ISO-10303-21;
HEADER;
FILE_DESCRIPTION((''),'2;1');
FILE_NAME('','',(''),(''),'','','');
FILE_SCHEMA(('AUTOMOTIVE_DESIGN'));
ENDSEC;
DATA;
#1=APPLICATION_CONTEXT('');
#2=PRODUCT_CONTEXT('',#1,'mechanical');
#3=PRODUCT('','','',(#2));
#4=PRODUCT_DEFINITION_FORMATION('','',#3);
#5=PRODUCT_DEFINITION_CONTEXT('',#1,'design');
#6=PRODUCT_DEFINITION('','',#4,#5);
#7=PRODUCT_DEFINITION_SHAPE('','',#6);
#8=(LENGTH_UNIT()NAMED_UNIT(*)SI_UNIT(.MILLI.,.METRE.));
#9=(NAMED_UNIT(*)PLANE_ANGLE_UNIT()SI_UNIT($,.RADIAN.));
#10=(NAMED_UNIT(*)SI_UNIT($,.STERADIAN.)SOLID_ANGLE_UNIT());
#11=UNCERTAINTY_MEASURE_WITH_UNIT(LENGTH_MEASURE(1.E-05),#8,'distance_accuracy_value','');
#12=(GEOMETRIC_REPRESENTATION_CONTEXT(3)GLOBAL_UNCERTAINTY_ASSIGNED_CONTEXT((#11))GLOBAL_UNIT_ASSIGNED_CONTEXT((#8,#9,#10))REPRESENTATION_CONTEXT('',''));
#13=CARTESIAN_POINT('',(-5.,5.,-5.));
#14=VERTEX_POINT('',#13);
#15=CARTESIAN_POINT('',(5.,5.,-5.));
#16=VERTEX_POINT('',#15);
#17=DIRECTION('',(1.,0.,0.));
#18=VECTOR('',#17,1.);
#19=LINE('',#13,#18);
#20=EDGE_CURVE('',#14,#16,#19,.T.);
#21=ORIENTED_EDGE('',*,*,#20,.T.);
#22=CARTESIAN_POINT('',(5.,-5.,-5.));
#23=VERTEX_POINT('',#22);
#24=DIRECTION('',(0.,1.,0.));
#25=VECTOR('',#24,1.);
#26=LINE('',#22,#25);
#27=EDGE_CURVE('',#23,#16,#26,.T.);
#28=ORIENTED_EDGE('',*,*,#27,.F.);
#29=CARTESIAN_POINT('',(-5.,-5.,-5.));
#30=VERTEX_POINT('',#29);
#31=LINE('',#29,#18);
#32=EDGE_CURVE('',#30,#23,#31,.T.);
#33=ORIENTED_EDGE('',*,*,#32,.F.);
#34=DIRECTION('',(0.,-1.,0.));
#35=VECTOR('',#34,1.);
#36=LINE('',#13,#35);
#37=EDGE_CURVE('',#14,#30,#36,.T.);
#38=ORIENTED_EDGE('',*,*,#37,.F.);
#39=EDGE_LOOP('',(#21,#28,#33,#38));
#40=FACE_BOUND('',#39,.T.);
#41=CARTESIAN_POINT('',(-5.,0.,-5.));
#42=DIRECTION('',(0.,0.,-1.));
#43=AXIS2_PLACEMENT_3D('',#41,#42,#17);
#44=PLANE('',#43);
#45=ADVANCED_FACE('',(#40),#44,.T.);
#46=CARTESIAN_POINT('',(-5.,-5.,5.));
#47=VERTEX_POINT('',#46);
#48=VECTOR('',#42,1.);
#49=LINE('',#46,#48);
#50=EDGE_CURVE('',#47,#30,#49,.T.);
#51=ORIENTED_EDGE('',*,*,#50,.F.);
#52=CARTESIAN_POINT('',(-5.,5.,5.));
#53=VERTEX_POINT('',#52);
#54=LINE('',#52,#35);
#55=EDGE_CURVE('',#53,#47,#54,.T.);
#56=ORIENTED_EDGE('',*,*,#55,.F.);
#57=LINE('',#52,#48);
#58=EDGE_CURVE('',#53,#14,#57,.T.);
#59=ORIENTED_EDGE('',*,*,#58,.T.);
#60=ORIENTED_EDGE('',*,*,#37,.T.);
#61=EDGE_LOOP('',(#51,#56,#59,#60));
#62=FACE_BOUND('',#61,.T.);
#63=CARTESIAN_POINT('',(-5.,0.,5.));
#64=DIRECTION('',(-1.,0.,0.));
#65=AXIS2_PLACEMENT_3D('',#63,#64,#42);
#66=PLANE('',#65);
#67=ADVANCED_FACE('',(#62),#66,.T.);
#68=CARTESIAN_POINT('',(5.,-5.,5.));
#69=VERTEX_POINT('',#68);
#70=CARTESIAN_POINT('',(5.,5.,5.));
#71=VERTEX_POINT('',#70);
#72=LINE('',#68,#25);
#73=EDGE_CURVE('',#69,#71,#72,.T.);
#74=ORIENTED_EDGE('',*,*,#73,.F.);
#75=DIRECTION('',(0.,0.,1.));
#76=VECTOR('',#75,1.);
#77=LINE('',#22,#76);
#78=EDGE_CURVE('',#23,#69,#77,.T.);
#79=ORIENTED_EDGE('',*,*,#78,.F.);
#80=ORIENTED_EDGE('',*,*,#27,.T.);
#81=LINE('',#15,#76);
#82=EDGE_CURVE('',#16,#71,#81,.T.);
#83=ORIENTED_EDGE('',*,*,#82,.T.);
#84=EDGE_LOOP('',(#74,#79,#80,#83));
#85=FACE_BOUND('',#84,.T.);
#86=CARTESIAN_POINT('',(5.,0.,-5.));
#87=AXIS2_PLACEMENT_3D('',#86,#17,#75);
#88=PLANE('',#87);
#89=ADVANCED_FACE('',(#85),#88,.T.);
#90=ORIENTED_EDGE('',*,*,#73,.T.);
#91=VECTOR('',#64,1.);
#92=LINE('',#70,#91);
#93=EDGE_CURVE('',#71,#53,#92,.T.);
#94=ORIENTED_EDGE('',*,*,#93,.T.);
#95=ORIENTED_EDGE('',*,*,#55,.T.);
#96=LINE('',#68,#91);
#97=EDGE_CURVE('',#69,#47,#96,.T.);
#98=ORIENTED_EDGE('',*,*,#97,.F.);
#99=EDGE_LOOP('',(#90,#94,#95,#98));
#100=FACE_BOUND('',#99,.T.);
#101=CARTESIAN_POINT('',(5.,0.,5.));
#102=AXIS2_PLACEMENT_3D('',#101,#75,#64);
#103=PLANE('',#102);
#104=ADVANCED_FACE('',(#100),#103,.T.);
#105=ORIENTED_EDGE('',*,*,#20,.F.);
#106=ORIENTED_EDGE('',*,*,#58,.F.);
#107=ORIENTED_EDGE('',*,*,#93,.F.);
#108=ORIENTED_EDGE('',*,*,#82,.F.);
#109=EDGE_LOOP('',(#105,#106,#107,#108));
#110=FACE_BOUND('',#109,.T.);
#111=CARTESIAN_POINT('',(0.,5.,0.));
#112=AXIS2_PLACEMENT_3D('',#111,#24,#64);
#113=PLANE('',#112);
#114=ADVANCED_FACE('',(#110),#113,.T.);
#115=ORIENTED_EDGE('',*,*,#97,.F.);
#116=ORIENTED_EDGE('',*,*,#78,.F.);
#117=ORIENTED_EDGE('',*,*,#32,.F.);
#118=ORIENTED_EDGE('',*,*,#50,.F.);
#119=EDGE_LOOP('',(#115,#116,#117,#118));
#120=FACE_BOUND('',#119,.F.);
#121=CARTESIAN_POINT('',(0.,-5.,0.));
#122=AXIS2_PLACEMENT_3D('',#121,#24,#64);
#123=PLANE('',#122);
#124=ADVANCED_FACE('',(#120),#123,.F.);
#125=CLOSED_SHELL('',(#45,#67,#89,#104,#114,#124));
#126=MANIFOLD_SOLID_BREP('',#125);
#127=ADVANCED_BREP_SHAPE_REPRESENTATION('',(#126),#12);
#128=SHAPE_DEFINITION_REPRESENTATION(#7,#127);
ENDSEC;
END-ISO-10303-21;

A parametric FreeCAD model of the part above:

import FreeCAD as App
import Part
import Sketcher
from FreeCAD import Vector
Q = App.Units.Quantity


def add_polygon(sketch, points):
    """Adds a closed chain of lines whose ends are joined by coincident constraints."""
    first, n = sketch.GeometryCount, len(points)
    for a, b in zip(points, points[1:] + points[:1]):
        sketch.addGeometry(Part.LineSegment(App.Vector(*a, 0), App.Vector(*b, 0)), False)
    for i in range(n):
        sketch.addConstraint(Sketcher.Constraint("Coincident", first + i, 2, first + (i + 1) % n, 1))

doc = App.newDocument("Part")
body = doc.addObject("PartDesign::Body", "Body")

# Sketch on XZ plane
sketch1 = doc.addObject("Sketcher::SketchObject", "Sketch")
body.addObject(sketch1)
sketch1.AttachmentSupport = (doc.XZ_Plane, [""])
sketch1.MapMode = "FlatFace"
add_polygon(sketch1, [(-5, 5), (5, 5), (5, -5), (-5, -5)])  # lines 0-3
sketch1.addConstraint([
    Sketcher.Constraint("Horizontal", 0),
    Sketcher.Constraint("Vertical", 1),
    Sketcher.Constraint("Horizontal", 2),
    Sketcher.Constraint("Vertical", 3),
    Sketcher.Constraint("Symmetric", 0, 2, 2, 2, -1, 1),
    Sketcher.Constraint("Equal", 2, 1),
    Sketcher.Constraint("DistanceX", 0, 1, 0, 2, Q("10 mm")),
])
pad1 = doc.addObject("PartDesign::Pad", "Pad")
body.addObject(pad1)
pad1.Profile = sketch1
pad1.Length = 10
pad1.Midplane = True

doc.recompute()
